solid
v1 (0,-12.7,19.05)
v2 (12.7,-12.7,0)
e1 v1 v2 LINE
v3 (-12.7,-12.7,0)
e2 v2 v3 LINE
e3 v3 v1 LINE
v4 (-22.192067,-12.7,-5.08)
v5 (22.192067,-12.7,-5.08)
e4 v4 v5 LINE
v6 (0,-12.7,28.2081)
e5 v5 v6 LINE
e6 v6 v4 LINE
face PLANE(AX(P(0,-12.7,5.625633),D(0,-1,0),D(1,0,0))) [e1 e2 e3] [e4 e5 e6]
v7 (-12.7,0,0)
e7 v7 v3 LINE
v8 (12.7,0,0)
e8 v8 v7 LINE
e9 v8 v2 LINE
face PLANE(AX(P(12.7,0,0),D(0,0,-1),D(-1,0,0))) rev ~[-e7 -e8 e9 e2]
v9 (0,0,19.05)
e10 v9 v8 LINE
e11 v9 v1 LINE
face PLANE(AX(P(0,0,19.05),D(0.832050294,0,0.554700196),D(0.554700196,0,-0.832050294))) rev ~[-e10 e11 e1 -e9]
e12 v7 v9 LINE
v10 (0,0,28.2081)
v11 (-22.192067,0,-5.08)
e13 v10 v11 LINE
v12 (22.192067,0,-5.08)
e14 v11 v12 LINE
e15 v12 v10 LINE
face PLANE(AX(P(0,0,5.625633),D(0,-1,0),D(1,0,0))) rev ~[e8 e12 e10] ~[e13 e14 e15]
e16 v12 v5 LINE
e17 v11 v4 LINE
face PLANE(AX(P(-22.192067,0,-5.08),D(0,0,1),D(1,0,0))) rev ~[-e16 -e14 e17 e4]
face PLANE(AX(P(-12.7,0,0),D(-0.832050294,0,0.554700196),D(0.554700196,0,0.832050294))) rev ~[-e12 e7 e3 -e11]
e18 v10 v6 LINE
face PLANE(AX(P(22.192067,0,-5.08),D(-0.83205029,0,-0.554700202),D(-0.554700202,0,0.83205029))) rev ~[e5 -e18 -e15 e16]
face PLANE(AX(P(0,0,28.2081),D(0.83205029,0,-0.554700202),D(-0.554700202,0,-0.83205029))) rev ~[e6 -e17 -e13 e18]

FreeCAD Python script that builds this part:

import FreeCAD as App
import Part
import Sketcher

V = App.Vector
Q = App.Units.Quantity

doc = App.newDocument("Part")
body = doc.addObject("PartDesign::Body", "Body")

# Sketch on XZ plane
sketch1 = body.newObject("Sketcher::SketchObject", "Sketch")
sketch1.AttachmentSupport = (doc.getObject("XZ_Plane"), [""])
sketch1.MapMode = "FlatFace"
sketch1.addGeometry(Part.LineSegment(V(0, 28, 0), V(-22, -5, 0)), False)
sketch1.addGeometry(Part.LineSegment(V(-22, -5, 0), V(22, -5, 0)), False)
sketch1.addGeometry(Part.LineSegment(V(22, -5, 0), V(0, 28, 0)), False)
sketch1.addGeometry(Part.LineSegment(V(13, 0, 0), V(-13, 0, 0)), False)
sketch1.addGeometry(Part.LineSegment(V(-13, 0, 0), V(0, 19, 0)), False)
sketch1.addGeometry(Part.LineSegment(V(0, 19, 0), V(13, 0, 0)), False)
sketch1.addConstraint(Sketcher.Constraint("Coincident", 0, 2, 1, 1))
sketch1.addConstraint(Sketcher.Constraint("Coincident", 1, 2, 2, 1))
sketch1.addConstraint(Sketcher.Constraint("Coincident", 2, 2, 0, 1))
sketch1.addConstraint(Sketcher.Constraint("Coincident", 3, 2, 4, 1))
sketch1.addConstraint(Sketcher.Constraint("Coincident", 4, 2, 5, 1))
sketch1.addConstraint(Sketcher.Constraint("Coincident", 5, 2, 3, 1))
sketch1.addConstraint(Sketcher.Constraint("Horizontal", 1))
sketch1.addConstraint(Sketcher.Constraint("Horizontal", 3))
sketch1.addConstraint(Sketcher.Constraint("Symmetric", 3, 2, 5, 2, -1, 1))
sketch1.addConstraint(Sketcher.Constraint("PointOnObject", 2, 2, -2))
sketch1.addConstraint(Sketcher.Constraint("PointOnObject", 4, 2, -2))
sketch1.addConstraint(Sketcher.Constraint("Parallel", 0, 4))
sketch1.addConstraint(Sketcher.Constraint("Parallel", 2, 5))
sketch1.addConstraint(Sketcher.Constraint("DistanceX", 3, 2, 3, 1, Q("1 in")))
sketch1.addConstraint(Sketcher.Constraint("DistanceY", 0, 2, -1, 1, Q("0.2 in")))
sketch1.addConstraint(Sketcher.Constraint("DistanceY", -1, 1, 4, 2, Q("0.75 in")))
sketch1.addConstraint(Sketcher.Constraint("DistanceY", -1, 1, 2, 2, 28.2081))
pad1 = body.newObject("PartDesign::Pad", "Pad")
pad1.Profile = sketch1
pad1.Length = Q("0.5 in")

doc.recompute()
